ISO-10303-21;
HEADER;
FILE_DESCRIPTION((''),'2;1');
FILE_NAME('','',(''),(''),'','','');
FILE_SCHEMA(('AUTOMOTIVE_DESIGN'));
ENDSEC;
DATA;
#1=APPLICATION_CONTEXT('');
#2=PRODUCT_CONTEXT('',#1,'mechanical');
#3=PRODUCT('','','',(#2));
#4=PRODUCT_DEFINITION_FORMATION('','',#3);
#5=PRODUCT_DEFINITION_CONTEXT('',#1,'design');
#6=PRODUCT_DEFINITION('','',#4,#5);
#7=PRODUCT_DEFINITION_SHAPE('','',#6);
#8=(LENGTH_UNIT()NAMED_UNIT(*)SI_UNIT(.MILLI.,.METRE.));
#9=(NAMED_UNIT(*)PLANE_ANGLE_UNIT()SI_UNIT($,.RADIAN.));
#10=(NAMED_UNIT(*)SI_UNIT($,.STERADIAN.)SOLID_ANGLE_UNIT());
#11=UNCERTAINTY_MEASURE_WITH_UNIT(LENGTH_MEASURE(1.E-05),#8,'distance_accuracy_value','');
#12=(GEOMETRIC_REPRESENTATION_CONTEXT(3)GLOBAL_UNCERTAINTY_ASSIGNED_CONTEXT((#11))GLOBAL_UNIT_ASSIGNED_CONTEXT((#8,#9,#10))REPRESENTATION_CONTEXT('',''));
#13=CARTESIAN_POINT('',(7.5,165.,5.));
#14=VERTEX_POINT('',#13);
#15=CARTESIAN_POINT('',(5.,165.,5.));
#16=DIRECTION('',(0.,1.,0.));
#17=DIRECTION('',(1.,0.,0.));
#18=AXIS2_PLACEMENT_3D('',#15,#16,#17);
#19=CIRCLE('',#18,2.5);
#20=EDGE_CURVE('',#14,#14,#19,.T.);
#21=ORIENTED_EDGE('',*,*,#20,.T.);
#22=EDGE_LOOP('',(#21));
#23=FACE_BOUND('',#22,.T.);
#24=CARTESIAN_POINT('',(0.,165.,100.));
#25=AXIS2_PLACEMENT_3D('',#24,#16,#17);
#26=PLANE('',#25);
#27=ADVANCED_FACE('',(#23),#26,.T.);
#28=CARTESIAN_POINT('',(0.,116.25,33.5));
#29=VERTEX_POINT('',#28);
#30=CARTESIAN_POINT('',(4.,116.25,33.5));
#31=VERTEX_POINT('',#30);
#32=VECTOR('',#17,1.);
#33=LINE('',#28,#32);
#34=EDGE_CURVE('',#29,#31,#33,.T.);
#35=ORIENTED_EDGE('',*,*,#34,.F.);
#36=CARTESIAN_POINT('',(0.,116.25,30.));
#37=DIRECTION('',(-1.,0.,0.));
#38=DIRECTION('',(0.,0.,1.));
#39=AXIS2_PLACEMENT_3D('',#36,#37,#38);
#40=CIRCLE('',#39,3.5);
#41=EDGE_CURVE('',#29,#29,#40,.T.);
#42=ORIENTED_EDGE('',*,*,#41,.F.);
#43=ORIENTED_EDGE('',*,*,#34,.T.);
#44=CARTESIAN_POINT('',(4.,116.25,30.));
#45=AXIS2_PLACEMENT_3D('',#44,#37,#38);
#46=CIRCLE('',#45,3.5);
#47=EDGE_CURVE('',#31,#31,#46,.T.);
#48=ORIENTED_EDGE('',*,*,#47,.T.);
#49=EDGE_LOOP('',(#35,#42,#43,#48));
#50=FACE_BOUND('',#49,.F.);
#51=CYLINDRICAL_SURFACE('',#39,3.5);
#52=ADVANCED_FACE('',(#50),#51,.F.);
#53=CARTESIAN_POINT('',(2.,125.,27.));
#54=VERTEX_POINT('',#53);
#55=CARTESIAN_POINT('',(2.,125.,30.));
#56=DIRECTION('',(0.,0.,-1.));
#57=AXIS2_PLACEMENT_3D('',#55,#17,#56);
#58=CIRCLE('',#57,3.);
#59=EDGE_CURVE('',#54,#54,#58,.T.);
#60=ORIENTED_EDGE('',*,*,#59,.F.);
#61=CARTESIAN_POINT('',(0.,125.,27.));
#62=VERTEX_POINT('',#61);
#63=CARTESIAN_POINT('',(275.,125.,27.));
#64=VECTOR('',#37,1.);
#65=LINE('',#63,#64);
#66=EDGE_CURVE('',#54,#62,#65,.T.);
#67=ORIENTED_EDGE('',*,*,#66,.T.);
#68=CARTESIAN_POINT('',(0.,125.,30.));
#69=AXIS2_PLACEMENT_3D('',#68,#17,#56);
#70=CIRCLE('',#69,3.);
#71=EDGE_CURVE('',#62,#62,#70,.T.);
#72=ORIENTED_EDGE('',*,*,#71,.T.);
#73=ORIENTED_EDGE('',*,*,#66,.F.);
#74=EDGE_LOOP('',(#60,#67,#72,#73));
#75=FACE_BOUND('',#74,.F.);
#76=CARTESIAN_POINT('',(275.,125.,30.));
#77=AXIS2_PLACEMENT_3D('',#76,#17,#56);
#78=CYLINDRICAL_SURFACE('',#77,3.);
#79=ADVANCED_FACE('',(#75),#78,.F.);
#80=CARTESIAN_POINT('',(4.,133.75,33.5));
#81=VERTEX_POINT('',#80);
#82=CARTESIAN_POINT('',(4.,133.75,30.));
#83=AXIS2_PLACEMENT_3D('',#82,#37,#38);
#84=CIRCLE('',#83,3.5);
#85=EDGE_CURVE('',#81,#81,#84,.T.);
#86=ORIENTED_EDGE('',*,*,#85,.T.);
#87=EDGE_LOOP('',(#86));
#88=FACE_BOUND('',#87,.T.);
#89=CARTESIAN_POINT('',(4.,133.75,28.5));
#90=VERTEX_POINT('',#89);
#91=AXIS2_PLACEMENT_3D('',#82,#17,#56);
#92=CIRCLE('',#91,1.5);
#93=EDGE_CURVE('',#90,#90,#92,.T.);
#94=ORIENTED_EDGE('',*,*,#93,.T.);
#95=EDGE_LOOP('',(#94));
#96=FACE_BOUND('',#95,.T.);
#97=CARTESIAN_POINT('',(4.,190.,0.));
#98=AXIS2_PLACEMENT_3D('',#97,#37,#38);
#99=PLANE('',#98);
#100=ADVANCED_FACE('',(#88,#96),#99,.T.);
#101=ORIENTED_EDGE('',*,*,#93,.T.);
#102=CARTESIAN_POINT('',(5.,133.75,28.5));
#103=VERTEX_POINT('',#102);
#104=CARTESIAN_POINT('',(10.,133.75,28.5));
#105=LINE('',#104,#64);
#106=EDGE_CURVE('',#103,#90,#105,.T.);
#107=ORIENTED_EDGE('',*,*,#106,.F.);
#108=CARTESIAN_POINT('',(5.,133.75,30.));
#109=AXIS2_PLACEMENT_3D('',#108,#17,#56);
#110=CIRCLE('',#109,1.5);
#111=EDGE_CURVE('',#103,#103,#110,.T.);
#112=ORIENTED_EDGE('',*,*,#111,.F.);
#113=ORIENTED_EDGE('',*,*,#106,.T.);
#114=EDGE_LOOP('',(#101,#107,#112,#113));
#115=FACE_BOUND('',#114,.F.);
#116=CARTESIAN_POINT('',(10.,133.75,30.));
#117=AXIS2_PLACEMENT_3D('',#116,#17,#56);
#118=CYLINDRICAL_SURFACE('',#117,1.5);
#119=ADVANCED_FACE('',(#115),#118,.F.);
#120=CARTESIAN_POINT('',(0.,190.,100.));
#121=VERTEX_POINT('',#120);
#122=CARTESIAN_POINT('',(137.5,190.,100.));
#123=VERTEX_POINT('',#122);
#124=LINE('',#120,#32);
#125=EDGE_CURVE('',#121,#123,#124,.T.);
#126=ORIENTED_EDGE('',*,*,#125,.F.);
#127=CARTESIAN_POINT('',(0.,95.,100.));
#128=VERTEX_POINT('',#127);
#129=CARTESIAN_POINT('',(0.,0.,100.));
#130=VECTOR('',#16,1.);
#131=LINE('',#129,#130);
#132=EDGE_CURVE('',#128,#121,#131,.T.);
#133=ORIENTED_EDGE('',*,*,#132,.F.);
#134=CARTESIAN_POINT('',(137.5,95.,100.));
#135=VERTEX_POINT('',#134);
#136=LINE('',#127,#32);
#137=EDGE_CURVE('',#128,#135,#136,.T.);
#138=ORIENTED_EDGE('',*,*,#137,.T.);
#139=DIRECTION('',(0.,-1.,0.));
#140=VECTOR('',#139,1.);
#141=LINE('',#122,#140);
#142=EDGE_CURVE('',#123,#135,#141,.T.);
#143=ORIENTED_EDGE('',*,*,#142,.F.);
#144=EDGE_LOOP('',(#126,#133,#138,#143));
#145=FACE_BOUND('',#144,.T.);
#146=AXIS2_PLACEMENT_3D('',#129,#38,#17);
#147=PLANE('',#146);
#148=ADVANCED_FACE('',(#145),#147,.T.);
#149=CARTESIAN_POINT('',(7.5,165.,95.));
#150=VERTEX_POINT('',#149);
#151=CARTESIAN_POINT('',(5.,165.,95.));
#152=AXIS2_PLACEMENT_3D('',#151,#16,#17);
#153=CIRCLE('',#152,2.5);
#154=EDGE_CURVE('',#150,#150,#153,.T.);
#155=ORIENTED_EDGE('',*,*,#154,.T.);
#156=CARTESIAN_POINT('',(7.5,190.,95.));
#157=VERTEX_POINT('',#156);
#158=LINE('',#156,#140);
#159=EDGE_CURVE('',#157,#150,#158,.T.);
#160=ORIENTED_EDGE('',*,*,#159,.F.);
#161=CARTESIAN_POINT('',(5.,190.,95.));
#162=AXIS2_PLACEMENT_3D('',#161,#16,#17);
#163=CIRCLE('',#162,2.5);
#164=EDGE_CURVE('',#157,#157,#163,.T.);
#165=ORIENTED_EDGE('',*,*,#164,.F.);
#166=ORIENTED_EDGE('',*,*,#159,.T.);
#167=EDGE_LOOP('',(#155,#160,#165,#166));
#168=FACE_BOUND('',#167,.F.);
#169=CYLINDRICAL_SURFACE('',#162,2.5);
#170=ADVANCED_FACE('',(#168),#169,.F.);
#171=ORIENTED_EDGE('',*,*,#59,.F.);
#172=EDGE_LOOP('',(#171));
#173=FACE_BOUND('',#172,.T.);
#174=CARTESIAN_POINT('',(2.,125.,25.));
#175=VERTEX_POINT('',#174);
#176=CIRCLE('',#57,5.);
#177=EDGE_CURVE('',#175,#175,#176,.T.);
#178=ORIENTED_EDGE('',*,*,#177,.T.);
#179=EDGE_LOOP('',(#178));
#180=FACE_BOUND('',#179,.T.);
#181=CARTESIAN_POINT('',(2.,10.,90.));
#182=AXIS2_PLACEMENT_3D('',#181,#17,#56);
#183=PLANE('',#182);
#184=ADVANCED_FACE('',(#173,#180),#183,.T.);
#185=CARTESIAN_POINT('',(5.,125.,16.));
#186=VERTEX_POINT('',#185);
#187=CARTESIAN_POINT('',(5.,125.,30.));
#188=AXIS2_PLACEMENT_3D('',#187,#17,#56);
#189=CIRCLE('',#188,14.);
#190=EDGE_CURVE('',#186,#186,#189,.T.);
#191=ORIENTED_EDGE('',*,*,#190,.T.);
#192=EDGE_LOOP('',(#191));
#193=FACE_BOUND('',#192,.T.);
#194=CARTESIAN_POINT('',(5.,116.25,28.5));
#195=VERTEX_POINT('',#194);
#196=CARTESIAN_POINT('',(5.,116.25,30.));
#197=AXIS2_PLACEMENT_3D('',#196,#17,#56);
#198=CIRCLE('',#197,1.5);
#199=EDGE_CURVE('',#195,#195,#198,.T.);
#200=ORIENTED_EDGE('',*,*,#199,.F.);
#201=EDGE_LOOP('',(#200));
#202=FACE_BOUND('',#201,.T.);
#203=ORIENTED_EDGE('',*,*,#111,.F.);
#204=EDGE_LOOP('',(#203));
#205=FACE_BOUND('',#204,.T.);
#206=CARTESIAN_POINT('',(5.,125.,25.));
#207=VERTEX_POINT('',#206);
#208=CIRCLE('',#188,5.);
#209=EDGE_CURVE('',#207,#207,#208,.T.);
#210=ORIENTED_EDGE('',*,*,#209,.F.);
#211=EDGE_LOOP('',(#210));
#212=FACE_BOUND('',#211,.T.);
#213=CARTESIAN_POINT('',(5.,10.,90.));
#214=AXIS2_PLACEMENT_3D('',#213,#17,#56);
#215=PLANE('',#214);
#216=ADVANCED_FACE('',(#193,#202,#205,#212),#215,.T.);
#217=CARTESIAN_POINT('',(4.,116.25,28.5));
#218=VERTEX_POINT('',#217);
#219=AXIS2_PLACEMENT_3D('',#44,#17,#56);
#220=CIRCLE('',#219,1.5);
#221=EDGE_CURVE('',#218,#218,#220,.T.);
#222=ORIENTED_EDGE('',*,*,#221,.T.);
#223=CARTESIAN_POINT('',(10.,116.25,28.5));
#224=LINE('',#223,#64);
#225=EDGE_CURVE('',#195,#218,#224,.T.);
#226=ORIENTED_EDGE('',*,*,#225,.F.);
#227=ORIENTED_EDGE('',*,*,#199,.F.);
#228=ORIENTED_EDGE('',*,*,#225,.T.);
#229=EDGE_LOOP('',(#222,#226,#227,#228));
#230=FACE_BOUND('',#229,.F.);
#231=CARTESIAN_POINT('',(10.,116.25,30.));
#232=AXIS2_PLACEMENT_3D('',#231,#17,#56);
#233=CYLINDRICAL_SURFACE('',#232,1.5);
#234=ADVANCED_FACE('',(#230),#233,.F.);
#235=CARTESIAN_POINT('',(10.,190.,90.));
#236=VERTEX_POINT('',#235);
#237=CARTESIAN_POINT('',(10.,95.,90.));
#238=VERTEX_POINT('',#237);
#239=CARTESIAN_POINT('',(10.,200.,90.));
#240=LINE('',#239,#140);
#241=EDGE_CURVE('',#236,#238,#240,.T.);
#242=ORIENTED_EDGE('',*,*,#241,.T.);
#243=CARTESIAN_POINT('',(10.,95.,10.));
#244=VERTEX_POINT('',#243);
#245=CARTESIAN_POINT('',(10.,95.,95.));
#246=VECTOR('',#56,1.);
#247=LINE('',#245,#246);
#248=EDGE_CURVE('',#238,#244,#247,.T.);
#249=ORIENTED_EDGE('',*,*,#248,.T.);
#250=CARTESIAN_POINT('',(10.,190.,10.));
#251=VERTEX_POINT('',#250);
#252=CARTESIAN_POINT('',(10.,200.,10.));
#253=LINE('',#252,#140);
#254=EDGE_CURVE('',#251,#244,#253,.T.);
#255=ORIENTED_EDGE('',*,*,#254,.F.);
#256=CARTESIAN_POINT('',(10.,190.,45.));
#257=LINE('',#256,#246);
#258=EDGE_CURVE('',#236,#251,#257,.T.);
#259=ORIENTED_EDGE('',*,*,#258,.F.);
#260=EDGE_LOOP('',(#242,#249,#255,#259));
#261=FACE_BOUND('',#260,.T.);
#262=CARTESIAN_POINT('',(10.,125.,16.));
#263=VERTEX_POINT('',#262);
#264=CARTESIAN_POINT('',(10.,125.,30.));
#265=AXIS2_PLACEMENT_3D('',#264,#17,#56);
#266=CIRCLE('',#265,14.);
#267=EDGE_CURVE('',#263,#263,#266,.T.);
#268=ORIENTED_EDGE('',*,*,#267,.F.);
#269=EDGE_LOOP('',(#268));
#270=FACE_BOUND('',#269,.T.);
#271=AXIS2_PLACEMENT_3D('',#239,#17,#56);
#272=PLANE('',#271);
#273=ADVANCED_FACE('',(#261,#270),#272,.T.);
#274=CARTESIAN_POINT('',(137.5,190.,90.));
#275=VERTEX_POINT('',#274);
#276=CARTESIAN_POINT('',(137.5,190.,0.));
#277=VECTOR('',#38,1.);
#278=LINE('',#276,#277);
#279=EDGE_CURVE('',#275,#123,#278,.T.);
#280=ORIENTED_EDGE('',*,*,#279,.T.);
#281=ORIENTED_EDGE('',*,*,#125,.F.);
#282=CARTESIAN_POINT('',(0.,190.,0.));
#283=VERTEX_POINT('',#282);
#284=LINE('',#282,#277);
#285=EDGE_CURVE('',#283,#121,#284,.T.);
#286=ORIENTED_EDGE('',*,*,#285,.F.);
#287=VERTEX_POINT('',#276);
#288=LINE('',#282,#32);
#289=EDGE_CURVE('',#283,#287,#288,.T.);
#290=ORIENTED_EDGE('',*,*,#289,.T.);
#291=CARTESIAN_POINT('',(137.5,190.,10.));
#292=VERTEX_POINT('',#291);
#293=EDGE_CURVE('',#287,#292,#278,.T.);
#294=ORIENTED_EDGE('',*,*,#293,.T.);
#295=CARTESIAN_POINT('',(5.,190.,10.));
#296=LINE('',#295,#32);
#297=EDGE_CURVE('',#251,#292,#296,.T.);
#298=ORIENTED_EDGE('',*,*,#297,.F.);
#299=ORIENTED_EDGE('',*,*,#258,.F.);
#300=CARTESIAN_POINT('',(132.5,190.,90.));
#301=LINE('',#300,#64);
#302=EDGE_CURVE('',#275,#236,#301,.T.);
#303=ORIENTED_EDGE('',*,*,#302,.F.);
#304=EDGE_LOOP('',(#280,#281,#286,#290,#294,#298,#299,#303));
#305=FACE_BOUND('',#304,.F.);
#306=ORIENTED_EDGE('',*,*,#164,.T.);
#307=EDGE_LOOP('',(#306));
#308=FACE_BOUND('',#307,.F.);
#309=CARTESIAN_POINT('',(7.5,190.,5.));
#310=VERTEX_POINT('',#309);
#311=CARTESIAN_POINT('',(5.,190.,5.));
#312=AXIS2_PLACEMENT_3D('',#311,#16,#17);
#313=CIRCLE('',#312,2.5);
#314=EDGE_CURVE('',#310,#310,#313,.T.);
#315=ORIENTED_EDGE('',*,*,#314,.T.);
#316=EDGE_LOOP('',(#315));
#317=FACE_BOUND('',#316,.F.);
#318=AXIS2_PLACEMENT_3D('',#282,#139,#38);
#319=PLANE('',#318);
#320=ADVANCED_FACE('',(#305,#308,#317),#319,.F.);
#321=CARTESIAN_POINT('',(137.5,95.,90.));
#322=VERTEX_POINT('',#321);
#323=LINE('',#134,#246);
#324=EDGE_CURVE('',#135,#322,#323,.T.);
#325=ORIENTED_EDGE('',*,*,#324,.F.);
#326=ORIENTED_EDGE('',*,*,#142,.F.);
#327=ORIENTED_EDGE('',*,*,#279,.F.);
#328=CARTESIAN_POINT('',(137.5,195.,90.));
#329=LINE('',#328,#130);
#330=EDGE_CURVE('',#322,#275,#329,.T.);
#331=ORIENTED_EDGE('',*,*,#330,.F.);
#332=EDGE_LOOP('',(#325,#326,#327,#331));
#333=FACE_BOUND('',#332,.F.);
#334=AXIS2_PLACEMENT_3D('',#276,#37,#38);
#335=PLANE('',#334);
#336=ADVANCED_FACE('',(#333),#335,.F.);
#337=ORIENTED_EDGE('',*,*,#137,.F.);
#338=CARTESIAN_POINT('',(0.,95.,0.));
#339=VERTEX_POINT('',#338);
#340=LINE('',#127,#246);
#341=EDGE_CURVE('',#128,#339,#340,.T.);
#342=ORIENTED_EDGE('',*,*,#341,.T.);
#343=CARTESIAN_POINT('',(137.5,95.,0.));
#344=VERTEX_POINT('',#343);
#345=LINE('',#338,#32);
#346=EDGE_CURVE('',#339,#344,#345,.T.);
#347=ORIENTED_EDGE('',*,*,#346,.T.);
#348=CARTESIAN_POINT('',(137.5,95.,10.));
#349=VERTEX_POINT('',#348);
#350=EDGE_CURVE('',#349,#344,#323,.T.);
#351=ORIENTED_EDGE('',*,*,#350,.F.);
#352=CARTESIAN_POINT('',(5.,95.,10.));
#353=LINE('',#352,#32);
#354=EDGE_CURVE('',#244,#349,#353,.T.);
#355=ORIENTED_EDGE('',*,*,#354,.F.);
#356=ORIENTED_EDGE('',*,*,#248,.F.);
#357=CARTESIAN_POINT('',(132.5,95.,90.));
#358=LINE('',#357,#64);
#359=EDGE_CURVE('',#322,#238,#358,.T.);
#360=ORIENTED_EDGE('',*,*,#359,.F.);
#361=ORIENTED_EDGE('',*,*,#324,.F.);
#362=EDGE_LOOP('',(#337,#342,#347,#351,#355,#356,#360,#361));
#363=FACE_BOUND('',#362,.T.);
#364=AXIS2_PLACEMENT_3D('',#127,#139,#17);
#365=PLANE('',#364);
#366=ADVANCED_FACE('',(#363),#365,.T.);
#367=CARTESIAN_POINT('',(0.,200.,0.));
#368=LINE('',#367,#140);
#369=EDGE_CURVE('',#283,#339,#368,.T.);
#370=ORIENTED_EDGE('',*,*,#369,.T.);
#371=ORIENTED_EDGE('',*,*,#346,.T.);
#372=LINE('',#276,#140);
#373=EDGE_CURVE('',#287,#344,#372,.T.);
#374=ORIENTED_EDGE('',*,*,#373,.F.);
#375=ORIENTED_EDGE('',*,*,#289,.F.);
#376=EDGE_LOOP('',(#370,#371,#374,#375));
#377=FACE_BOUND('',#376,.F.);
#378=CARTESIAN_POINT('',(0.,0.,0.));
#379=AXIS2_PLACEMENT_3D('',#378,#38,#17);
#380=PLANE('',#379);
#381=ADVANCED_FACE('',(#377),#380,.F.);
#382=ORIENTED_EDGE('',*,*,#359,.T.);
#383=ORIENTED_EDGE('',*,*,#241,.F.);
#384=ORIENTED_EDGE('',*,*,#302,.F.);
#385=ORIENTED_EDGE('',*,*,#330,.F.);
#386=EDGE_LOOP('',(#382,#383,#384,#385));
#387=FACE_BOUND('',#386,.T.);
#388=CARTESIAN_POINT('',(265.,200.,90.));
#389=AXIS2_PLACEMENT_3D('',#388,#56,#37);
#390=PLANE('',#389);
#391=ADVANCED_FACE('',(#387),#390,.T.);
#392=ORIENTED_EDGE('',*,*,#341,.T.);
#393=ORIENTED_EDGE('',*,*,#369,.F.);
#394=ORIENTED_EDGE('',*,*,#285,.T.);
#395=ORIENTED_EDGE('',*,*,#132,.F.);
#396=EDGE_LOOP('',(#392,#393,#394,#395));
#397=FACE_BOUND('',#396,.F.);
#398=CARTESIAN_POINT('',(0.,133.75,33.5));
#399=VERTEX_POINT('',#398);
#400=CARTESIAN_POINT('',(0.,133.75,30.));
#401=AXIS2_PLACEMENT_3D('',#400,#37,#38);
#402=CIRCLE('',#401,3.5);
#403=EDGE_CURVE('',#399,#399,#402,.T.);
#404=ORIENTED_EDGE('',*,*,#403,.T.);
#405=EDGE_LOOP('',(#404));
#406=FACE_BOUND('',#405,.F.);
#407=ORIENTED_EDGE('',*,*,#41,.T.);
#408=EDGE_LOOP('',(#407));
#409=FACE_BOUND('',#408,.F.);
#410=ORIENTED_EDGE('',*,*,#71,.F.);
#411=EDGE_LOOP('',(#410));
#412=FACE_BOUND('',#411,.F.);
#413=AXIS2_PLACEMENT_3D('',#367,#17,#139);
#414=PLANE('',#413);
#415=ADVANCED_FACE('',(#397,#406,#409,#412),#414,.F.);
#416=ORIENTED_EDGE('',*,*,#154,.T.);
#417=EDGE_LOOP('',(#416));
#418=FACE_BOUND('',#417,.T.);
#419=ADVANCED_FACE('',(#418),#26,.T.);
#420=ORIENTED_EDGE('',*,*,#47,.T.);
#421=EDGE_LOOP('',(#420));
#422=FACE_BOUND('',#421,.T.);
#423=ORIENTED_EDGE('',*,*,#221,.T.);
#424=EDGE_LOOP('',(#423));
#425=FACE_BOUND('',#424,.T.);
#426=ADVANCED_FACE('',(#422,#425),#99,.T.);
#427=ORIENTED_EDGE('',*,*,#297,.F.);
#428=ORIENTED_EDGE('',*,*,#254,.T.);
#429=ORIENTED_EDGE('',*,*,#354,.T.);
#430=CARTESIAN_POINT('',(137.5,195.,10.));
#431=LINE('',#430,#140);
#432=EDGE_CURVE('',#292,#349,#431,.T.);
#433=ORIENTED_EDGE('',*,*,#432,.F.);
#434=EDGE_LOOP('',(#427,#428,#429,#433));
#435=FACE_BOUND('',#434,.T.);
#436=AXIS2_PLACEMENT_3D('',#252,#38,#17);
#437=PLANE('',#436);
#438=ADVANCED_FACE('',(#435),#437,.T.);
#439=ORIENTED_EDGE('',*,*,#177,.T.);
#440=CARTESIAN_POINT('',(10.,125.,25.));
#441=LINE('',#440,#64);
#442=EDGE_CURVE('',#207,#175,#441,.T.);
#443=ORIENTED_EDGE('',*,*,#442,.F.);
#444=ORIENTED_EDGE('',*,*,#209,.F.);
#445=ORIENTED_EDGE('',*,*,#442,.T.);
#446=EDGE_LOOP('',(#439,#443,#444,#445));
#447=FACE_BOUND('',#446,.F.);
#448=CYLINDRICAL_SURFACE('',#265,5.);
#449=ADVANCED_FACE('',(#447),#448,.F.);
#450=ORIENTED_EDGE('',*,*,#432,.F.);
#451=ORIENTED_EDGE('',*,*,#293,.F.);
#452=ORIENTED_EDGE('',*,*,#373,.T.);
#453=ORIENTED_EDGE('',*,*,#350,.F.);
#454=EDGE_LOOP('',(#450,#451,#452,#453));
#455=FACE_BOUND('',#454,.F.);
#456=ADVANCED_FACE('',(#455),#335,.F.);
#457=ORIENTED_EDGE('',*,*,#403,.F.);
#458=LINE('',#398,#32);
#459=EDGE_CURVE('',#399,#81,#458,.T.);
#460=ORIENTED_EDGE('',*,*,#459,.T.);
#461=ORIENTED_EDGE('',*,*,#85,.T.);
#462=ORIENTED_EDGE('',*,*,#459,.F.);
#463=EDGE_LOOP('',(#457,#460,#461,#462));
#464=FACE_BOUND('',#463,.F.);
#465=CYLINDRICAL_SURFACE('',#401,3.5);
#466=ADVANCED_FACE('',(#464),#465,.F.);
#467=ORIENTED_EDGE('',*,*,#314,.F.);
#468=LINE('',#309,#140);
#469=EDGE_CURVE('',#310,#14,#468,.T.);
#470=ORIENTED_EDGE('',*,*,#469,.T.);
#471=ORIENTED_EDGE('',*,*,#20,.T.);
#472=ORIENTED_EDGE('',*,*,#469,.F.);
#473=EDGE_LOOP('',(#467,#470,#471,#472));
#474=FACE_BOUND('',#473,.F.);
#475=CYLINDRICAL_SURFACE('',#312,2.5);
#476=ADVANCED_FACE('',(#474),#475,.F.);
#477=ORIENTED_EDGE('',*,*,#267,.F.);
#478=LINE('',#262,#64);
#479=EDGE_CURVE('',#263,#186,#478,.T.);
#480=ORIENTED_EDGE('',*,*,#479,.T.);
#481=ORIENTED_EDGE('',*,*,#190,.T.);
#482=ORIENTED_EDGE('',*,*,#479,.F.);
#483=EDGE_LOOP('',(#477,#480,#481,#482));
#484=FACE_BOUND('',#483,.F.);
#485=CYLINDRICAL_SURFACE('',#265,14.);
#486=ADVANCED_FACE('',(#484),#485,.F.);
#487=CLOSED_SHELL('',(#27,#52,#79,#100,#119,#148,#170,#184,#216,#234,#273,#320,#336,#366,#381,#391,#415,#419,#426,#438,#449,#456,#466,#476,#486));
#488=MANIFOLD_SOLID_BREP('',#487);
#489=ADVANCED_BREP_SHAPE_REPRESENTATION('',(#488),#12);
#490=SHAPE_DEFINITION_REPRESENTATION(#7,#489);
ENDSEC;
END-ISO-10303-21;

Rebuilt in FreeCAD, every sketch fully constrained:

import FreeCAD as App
import Part
import Sketcher
from FreeCAD import Vector

doc = App.newDocument("Part")
body = doc.addObject("PartDesign::Body", "Body")

# Sketch on XY plane
sketch1 = body.newObject("Sketcher::SketchObject", "Sketch")
sketch1.AttachmentSupport = (doc.getObject("XY_Plane"), [""])
sketch1.MapMode = "FlatFace"
sketch1.addGeometry([
    Part.LineSegment(Vector(0, 200, 0), Vector(0, 0, 0)),
    Part.LineSegment(Vector(0, 0, 0), Vector(275, 0, 0)),
    Part.LineSegment(Vector(275, 0, 0), Vector(275, 200, 0)),
    Part.LineSegment(Vector(275, 200, 0), Vector(0, 200, 0)),
], False)
sketch1.addConstraint([
    Sketcher.Constraint("Coincident", 0, 2, 1, 1),
    Sketcher.Constraint("Coincident", 1, 2, 2, 1),
    Sketcher.Constraint("Coincident", 2, 2, 3, 1),
    Sketcher.Constraint("Coincident", 3, 2, 0, 1),
    Sketcher.Constraint("Vertical", 0),
    Sketcher.Constraint("Horizontal", 1),
    Sketcher.Constraint("Vertical", 2),
    Sketcher.Constraint("Horizontal", 3),
    Sketcher.Constraint("Coincident", 0, 2, -1, 1),
    Sketcher.Constraint("DistanceX", 1, 1, 1, 2, 275.0),
    Sketcher.Constraint("DistanceY", 0, 2, 0, 1, 200.0),
])
pad1 = body.newObject("PartDesign::Pad", "Pad")
pad1.Profile = sketch1
pad1.Length = 20

# Sketch on XY plane
sketch2 = body.newObject("Sketcher::SketchObject", "Sketch001")
sketch2.AttachmentSupport = (doc.getObject("XY_Plane"), [""])
sketch2.MapMode = "FlatFace"
sketch2.AttachmentOffset = App.Placement(Vector(0, 0, 20), App.Rotation())
sketch2.addGeometry([
    Part.LineSegment(Vector(0, 0, 0), Vector(275, 0, 0)),
    Part.LineSegment(Vector(275, 0, 0), Vector(275, 200, 0)),
    Part.LineSegment(Vector(275, 200, 0), Vector(0, 200, 0)),
    Part.LineSegment(Vector(0, 200, 0), Vector(0, 0, 0)),
], False)
sketch2.addConstraint([
    Sketcher.Constraint("Coincident", 0, 2, 1, 1),
    Sketcher.Constraint("Coincident", 1, 2, 2, 1),
    Sketcher.Constraint("Coincident", 2, 2, 3, 1),
    Sketcher.Constraint("Coincident", 3, 2, 0, 1),
    Sketcher.Constraint("Horizontal", 0),
    Sketcher.Constraint("Vertical", 1),
    Sketcher.Constraint("Horizontal", 2),
    Sketcher.Constraint("Vertical", 3),
    Sketcher.Constraint("Coincident", 3, 2, -1, 1),
    Sketcher.Constraint("DistanceX", 0, 1, 0, 2, 275.0),
    Sketcher.Constraint("DistanceY", 1, 1, 1, 2, 200.0),
])
pad2 = body.newObject("PartDesign::Pad", "Pad001")
pad2.Profile = sketch2
pad2.Length = 80

# Sketch on XZ plane
sketch3 = body.newObject("Sketcher::SketchObject", "Sketch002")
sketch3.AttachmentSupport = (doc.getObject("XZ_Plane"), [""])
sketch3.MapMode = "FlatFace"
sketch3.addGeometry(Part.Circle(Vector(48, 50, 0), Vector(0, 0, 1), 18), False)
sketch3.addConstraint([
    Sketcher.Constraint("Diameter", 0, 35.0),
    Sketcher.Constraint("DistanceY", -1, 1, 0, 3, 50.0),
    Sketcher.Constraint("DistanceX", -1, 1, 0, 3, 47.5),
])
pocket1 = body.newObject("PartDesign::Pocket", "Pocket")
pocket1.Profile = sketch3
pocket1.Length = 100

# Sketch on XZ plane
sketch4 = body.newObject("Sketcher::SketchObject", "Sketch003")
sketch4.AttachmentSupport = (doc.getObject("XZ_Plane"), [""])
sketch4.MapMode = "FlatFace"
sketch4.AttachmentOffset = App.Placement(Vector(0, 0, -200), App.Rotation())
sketch4.addGeometry([
    Part.LineSegment(Vector(10, 90, 0), Vector(265, 90, 0)),
    Part.LineSegment(Vector(265, 90, 0), Vector(265, 10, 0)),
    Part.LineSegment(Vector(265, 10, 0), Vector(10, 10, 0)),
    Part.LineSegment(Vector(10, 10, 0), Vector(10, 90, 0)),
], False)
sketch4.addConstraint([
    Sketcher.Constraint("Coincident", 0, 2, 1, 1),
    Sketcher.Constraint("Coincident", 1, 2, 2, 1),
    Sketcher.Constraint("Coincident", 2, 2, 3, 1),
    Sketcher.Constraint("Coincident", 3, 2, 0, 1),
    Sketcher.Constraint("Horizontal", 0),
    Sketcher.Constraint("Vertical", 1),
    Sketcher.Constraint("Horizontal", 2),
    Sketcher.Constraint("Vertical", 3),
    Sketcher.Constraint("DistanceY", -1, 1, 1, 2, 10.0),
    Sketcher.Constraint("DistanceX", -1, 1, 2, 2, 10.0),
    Sketcher.Constraint("DistanceX", 0, 1, 0, 2, 255.0),
    Sketcher.Constraint("DistanceY", 1, 2, 1, 1, 80.0),
])
pocket2 = body.newObject("PartDesign::Pocket", "Pocket001")
pocket2.Profile = sketch4
pocket2.Length = 190
pocket2.Reversed = True

# Sketch on YZ plane
sketch5 = body.newObject("Sketcher::SketchObject", "Sketch004")
sketch5.AttachmentSupport = (doc.getObject("YZ_Plane"), [""])
sketch5.MapMode = "FlatFace"
sketch5.addGeometry([
    Part.LineSegment(Vector(200, 100, 0), Vector(200, 0, 0)),
    Part.LineSegment(Vector(200, 0, 0), Vector(190, 0, 0)),
    Part.LineSegment(Vector(190, 0, 0), Vector(190, 100, 0)),
    Part.LineSegment(Vector(190, 100, 0), Vector(200, 100, 0)),
], False)
sketch5.addConstraint([
    Sketcher.Constraint("Coincident", 0, 2, 1, 1),
    Sketcher.Constraint("Coincident", 1, 2, 2, 1),
    Sketcher.Constraint("Coincident", 2, 2, 3, 1),
    Sketcher.Constraint("Coincident", 3, 2, 0, 1),
    Sketcher.Constraint("Vertical", 0),
    Sketcher.Constraint("Horizontal", 1),
    Sketcher.Constraint("Vertical", 2),
    Sketcher.Constraint("Horizontal", 3),
    Sketcher.Constraint("PointOnObject", 0, 2, -1),
    Sketcher.Constraint("DistanceX", 1, 2, 1, 1, 10.0),
    Sketcher.Constraint("DistanceY", 0, 2, 0, 1, 100.0),
    Sketcher.Constraint("DistanceX", -1, 1, 0, 2, 200.0),
])
pocket3 = body.newObject("PartDesign::Pocket", "Pocket002")
pocket3.Profile = sketch5
pocket3.Type = "ThroughAll"
pocket3.Reversed = True

# Sketch on XZ plane
sketch6 = body.newObject("Sketcher::SketchObject", "Sketch005")
sketch6.AttachmentSupport = (doc.getObject("XZ_Plane"), [""])
sketch6.MapMode = "FlatFace"
sketch6.AttachmentOffset = App.Placement(Vector(0, 0, -190), App.Rotation())
sketch6.addGeometry([
    Part.Circle(Vector(270, 95, 0), Vector(0, 0, 1), 2.5),
    Part.Circle(Vector(270, 5, 0), Vector(0, 0, 1), 2.5),
    Part.Circle(Vector(5, 5, 0), Vector(0, 0, 1), 2.5),
    Part.Circle(Vector(5, 95, 0), Vector(0, 0, 1), 2.5),
], False)
sketch6.addConstraint([
    Sketcher.Constraint("Equal", 0, 1),
    Sketcher.Constraint("Equal", 1, 2),
    Sketcher.Constraint("Equal", 2, 3),
    Sketcher.Constraint("Horizontal", 1, 3, 2, 3),
    Sketcher.Constraint("Horizontal", 0, 3, 3, 3),
    Sketcher.Constraint("Vertical", 0, 3, 1, 3),
    Sketcher.Constraint("Vertical", 2, 3, 3, 3),
    Sketcher.Constraint("Diameter", 0, 5.0),
    Sketcher.Constraint("DistanceY", -1, 1, 1, 3, 5.0),
    Sketcher.Constraint("DistanceX", -1, 1, 2, 3, 5.0),
    Sketcher.Constraint("DistanceX", -1, 1, 0, 3, 270.0),
    Sketcher.Constraint("DistanceY", -1, 1, 0, 3, 95.0),
])
pocket4 = body.newObject("PartDesign::Pocket", "Pocket003")
pocket4.Profile = sketch6
pocket4.Length = 25
pocket4.Reversed = True

# Sketch on XZ plane
sketch7 = body.newObject("Sketcher::SketchObject", "Sketch006")
sketch7.AttachmentSupport = (doc.getObject("XZ_Plane"), [""])
sketch7.MapMode = "FlatFace"
sketch7.addGeometry([
    Part.LineSegment(Vector(82, 35, 0), Vector(82, 15, 0)),  # 0
    Part.LineSegment(Vector(82, 15, 0), Vector(85, 15, 0)),  # 1
    Part.LineSegment(Vector(85, 15, 0), Vector(85, 35, 0)),  # 2
    Part.LineSegment(Vector(85, 35, 0), Vector(82, 35, 0)),  # 3
    Part.LineSegment(Vector(94, 15, 0), Vector(97, 15, 0)),  # 4
    Part.LineSegment(Vector(97, 15, 0), Vector(97, 35, 0)),  # 5
    Part.LineSegment(Vector(97, 35, 0), Vector(94, 35, 0)),  # 6
    Part.LineSegment(Vector(94, 35, 0), Vector(94, 15, 0)),  # 7
    Part.LineSegment(Vector(106, 15, 0), Vector(109, 15, 0)),  # 8
    Part.LineSegment(Vector(109, 15, 0), Vector(109, 35, 0)),  # 9
    Part.LineSegment(Vector(109, 35, 0), Vector(106, 35, 0)),  # 10
    Part.LineSegment(Vector(106, 35, 0), Vector(106, 15, 0)),  # 11
    Part.LineSegment(Vector(118, 15, 0), Vector(121, 15, 0)),  # 12
    Part.LineSegment(Vector(121, 15, 0), Vector(121, 35, 0)),  # 13
    Part.LineSegment(Vector(121, 35, 0), Vector(118, 35, 0)),  # 14
    Part.LineSegment(Vector(118, 35, 0), Vector(118, 15, 0)),  # 15
    Part.LineSegment(Vector(130, 15, 0), Vector(133, 15, 0)),  # 16
    Part.LineSegment(Vector(133, 15, 0), Vector(133, 35, 0)),  # 17
    Part.LineSegment(Vector(133, 35, 0), Vector(130, 35, 0)),  # 18
    Part.LineSegment(Vector(130, 35, 0), Vector(130, 15, 0)),  # 19
    Part.LineSegment(Vector(142, 15, 0), Vector(145, 15, 0)),  # 20
    Part.LineSegment(Vector(145, 15, 0), Vector(145, 35, 0)),  # 21
    Part.LineSegment(Vector(145, 35, 0), Vector(142, 35, 0)),  # 22
    Part.LineSegment(Vector(142, 35, 0), Vector(142, 15, 0)),  # 23
    Part.LineSegment(Vector(154, 15, 0), Vector(157, 15, 0)),  # 24
    Part.LineSegment(Vector(157, 15, 0), Vector(157, 35, 0)),  # 25
    Part.LineSegment(Vector(157, 35, 0), Vector(154, 35, 0)),  # 26
    Part.LineSegment(Vector(154, 35, 0), Vector(154, 15, 0)),  # 27
    Part.LineSegment(Vector(166, 15, 0), Vector(169, 15, 0)),  # 28
    Part.LineSegment(Vector(169, 15, 0), Vector(169, 35, 0)),  # 29
    Part.LineSegment(Vector(169, 35, 0), Vector(166, 35, 0)),  # 30
    Part.LineSegment(Vector(166, 35, 0), Vector(166, 15, 0)),  # 31
    Part.LineSegment(Vector(178, 15, 0), Vector(181, 15, 0)),  # 32
    Part.LineSegment(Vector(181, 15, 0), Vector(181, 35, 0)),  # 33
    Part.LineSegment(Vector(181, 35, 0), Vector(178, 35, 0)),  # 34
    Part.LineSegment(Vector(178, 35, 0), Vector(178, 15, 0)),  # 35
    Part.LineSegment(Vector(190, 15, 0), Vector(193, 15, 0)),  # 36
    Part.LineSegment(Vector(193, 15, 0), Vector(193, 35, 0)),  # 37
    Part.LineSegment(Vector(193, 35, 0), Vector(190, 35, 0)),  # 38
    Part.LineSegment(Vector(190, 35, 0), Vector(190, 15, 0)),  # 39
    Part.LineSegment(Vector(202, 15, 0), Vector(205, 15, 0)),  # 40
    Part.LineSegment(Vector(205, 15, 0), Vector(205, 35, 0)),  # 41
    Part.LineSegment(Vector(205, 35, 0), Vector(202, 35, 0)),  # 42
    Part.LineSegment(Vector(202, 35, 0), Vector(202, 15, 0)),  # 43
    Part.LineSegment(Vector(214, 15, 0), Vector(217, 15, 0)),  # 44
    Part.LineSegment(Vector(217, 15, 0), Vector(217, 35, 0)),  # 45
    Part.LineSegment(Vector(217, 35, 0), Vector(214, 35, 0)),  # 46
    Part.LineSegment(Vector(214, 35, 0), Vector(214, 15, 0)),  # 47
    Part.LineSegment(Vector(226, 15, 0), Vector(229, 15, 0)),  # 48
    Part.LineSegment(Vector(229, 15, 0), Vector(229, 35, 0)),  # 49
    Part.LineSegment(Vector(229, 35, 0), Vector(226, 35, 0)),  # 50
    Part.LineSegment(Vector(226, 35, 0), Vector(226, 15, 0)),  # 51
    Part.LineSegment(Vector(238, 15, 0), Vector(241, 15, 0)),  # 52
    Part.LineSegment(Vector(241, 15, 0), Vector(241, 35, 0)),  # 53
    Part.LineSegment(Vector(241, 35, 0), Vector(238, 35, 0)),  # 54
    Part.LineSegment(Vector(238, 35, 0), Vector(238, 15, 0)),  # 55
], False)
sketch7.addConstraint([
    Sketcher.Constraint("Coincident", 0, 2, 1, 1),
    Sketcher.Constraint("Coincident", 1, 2, 2, 1),
    Sketcher.Constraint("Coincident", 2, 2, 3, 1),
    Sketcher.Constraint("Coincident", 3, 2, 0, 1),
    Sketcher.Constraint("Coincident", 4, 2, 5, 1),
    Sketcher.Constraint("Coincident", 5, 2, 6, 1),
    Sketcher.Constraint("Coincident", 6, 2, 7, 1),
    Sketcher.Constraint("Coincident", 7, 2, 4, 1),
    Sketcher.Constraint("Coincident", 8, 2, 9, 1),
    Sketcher.Constraint("Coincident", 9, 2, 10, 1),
    Sketcher.Constraint("Coincident", 10, 2, 11, 1),
    Sketcher.Constraint("Coincident", 11, 2, 8, 1),
    Sketcher.Constraint("Coincident", 12, 2, 13, 1),
    Sketcher.Constraint("Coincident", 13, 2, 14, 1),
    Sketcher.Constraint("Coincident", 14, 2, 15, 1),
    Sketcher.Constraint("Coincident", 15, 2, 12, 1),
    Sketcher.Constraint("Coincident", 16, 2, 17, 1),
    Sketcher.Constraint("Coincident", 17, 2, 18, 1),
    Sketcher.Constraint("Coincident", 18, 2, 19, 1),
    Sketcher.Constraint("Coincident", 19, 2, 16, 1),
    Sketcher.Constraint("Coincident", 20, 2, 21, 1),
    Sketcher.Constraint("Coincident", 21, 2, 22, 1),
    Sketcher.Constraint("Coincident", 22, 2, 23, 1),
    Sketcher.Constraint("Coincident", 23, 2, 20, 1),
    Sketcher.Constraint("Coincident", 24, 2, 25, 1),
    Sketcher.Constraint("Coincident", 25, 2, 26, 1),
    Sketcher.Constraint("Coincident", 26, 2, 27, 1),
    Sketcher.Constraint("Coincident", 27, 2, 24, 1),
    Sketcher.Constraint("Coincident", 28, 2, 29, 1),
    Sketcher.Constraint("Coincident", 29, 2, 30, 1),
    Sketcher.Constraint("Coincident", 30, 2, 31, 1),
    Sketcher.Constraint("Coincident", 31, 2, 28, 1),
    Sketcher.Constraint("Coincident", 32, 2, 33, 1),
    Sketcher.Constraint("Coincident", 33, 2, 34, 1),
    Sketcher.Constraint("Coincident", 34, 2, 35, 1),
    Sketcher.Constraint("Coincident", 35, 2, 32, 1),
    Sketcher.Constraint("Coincident", 36, 2, 37, 1),
    Sketcher.Constraint("Coincident", 37, 2, 38, 1),
    Sketcher.Constraint("Coincident", 38, 2, 39, 1),
    Sketcher.Constraint("Coincident", 39, 2, 36, 1),
    Sketcher.Constraint("Coincident", 40, 2, 41, 1),
    Sketcher.Constraint("Coincident", 41, 2, 42, 1),
    Sketcher.Constraint("Coincident", 42, 2, 43, 1),
    Sketcher.Constraint("Coincident", 43, 2, 40, 1),
    Sketcher.Constraint("Coincident", 44, 2, 45, 1),
    Sketcher.Constraint("Coincident", 45, 2, 46, 1),
    Sketcher.Constraint("Coincident", 46, 2, 47, 1),
    Sketcher.Constraint("Coincident", 47, 2, 44, 1),
    Sketcher.Constraint("Coincident", 48, 2, 49, 1),
    Sketcher.Constraint("Coincident", 49, 2, 50, 1),
    Sketcher.Constraint("Coincident", 50, 2, 51, 1),
    Sketcher.Constraint("Coincident", 51, 2, 48, 1),
    Sketcher.Constraint("Coincident", 52, 2, 53, 1),
    Sketcher.Constraint("Coincident", 53, 2, 54, 1),
    Sketcher.Constraint("Coincident", 54, 2, 55, 1),
    Sketcher.Constraint("Coincident", 55, 2, 52, 1),
    Sketcher.Constraint("Vertical", 0),
    Sketcher.Constraint("Horizontal", 1),
    Sketcher.Constraint("Vertical", 2),
    Sketcher.Constraint("Horizontal", 3),
    Sketcher.Constraint("Horizontal", 4),
    Sketcher.Constraint("Vertical", 5),
    Sketcher.Constraint("Horizontal", 6),
    Sketcher.Constraint("Vertical", 7),
    Sketcher.Constraint("Horizontal", 8),
    Sketcher.Constraint("Vertical", 9),
    Sketcher.Constraint("Horizontal", 10),
    Sketcher.Constraint("Vertical", 11),
    Sketcher.Constraint("Horizontal", 12),
    Sketcher.Constraint("Vertical", 13),
    Sketcher.Constraint("Horizontal", 14),
    Sketcher.Constraint("Vertical", 15),
    Sketcher.Constraint("Horizontal", 16),
    Sketcher.Constraint("Vertical", 17),
    Sketcher.Constraint("Horizontal", 18),
    Sketcher.Constraint("Vertical", 19),
    Sketcher.Constraint("Horizontal", 20),
    Sketcher.Constraint("Vertical", 21),
    Sketcher.Constraint("Horizontal", 22),
    Sketcher.Constraint("Vertical", 23),
    Sketcher.Constraint("Horizontal", 24),
    Sketcher.Constraint("Vertical", 25),
    Sketcher.Constraint("Horizontal", 26),
    Sketcher.Constraint("Vertical", 27),
    Sketcher.Constraint("Horizontal", 28),
    Sketcher.Constraint("Vertical", 29),
    Sketcher.Constraint("Horizontal", 30),
    Sketcher.Constraint("Vertical", 31),
    Sketcher.Constraint("Horizontal", 32),
    Sketcher.Constraint("Vertical", 33),
    Sketcher.Constraint("Horizontal", 34),
    Sketcher.Constraint("Vertical", 35),
    Sketcher.Constraint("Horizontal", 36),
    Sketcher.Constraint("Vertical", 37),
    Sketcher.Constraint("Horizontal", 38),
    Sketcher.Constraint("Vertical", 39),
    Sketcher.Constraint("Horizontal", 40),
    Sketcher.Constraint("Vertical", 41),
    Sketcher.Constraint("Horizontal", 42),
    Sketcher.Constraint("Vertical", 43),
    Sketcher.Constraint("Horizontal", 44),
    Sketcher.Constraint("Vertical", 45),
    Sketcher.Constraint("Horizontal", 46),
    Sketcher.Constraint("Vertical", 47),
    Sketcher.Constraint("Horizontal", 48),
    Sketcher.Constraint("Vertical", 49),
    Sketcher.Constraint("Horizontal", 50),
    Sketcher.Constraint("Vertical", 51),
    Sketcher.Constraint("Horizontal", 52),
    Sketcher.Constraint("Vertical", 53),
    Sketcher.Constraint("Horizontal", 54),
    Sketcher.Constraint("Vertical", 55),
    Sketcher.Constraint("Horizontal", 1, 2, 4, 2),
    Sketcher.Constraint("Horizontal", 3, 2, 5, 2),
    Sketcher.Constraint("Horizontal", 7, 2, 8, 2),
    Sketcher.Constraint("Horizontal", 6, 2, 9, 2),
    Sketcher.Constraint("Horizontal", 11, 2, 12, 2),
    Sketcher.Constraint("Horizontal", 10, 2, 13, 2),
    Sketcher.Constraint("Horizontal", 15, 2, 16, 2),
    Sketcher.Constraint("Horizontal", 14, 2, 17, 2),
    Sketcher.Constraint("Horizontal", 19, 2, 20, 2),
    Sketcher.Constraint("Horizontal", 18, 2, 21, 2),
    Sketcher.Constraint("Horizontal", 23, 2, 24, 2),
    Sketcher.Constraint("Horizontal", 22, 2, 25, 2),
    Sketcher.Constraint("Horizontal", 27, 2, 28, 2),
    Sketcher.Constraint("Horizontal", 26, 2, 29, 2),
    Sketcher.Constraint("Horizontal", 31, 2, 32, 2),
    Sketcher.Constraint("Horizontal", 30, 2, 33, 2),
    Sketcher.Constraint("Horizontal", 35, 2, 36, 2),
    Sketcher.Constraint("Horizontal", 34, 2, 37, 2),
    Sketcher.Constraint("Horizontal", 39, 2, 40, 2),
    Sketcher.Constraint("Horizontal", 38, 2, 41, 2),
    Sketcher.Constraint("Horizontal", 43, 2, 44, 2),
    Sketcher.Constraint("Horizontal", 42, 2, 45, 2),
    Sketcher.Constraint("Horizontal", 47, 2, 48, 2),
    Sketcher.Constraint("Horizontal", 46, 2, 49, 2),
    Sketcher.Constraint("Horizontal", 51, 2, 52, 2),
    Sketcher.Constraint("Horizontal", 50, 2, 53, 2),
    Sketcher.Constraint("Equal", 3, 4),
    Sketcher.Constraint("Equal", 6, 8),
    Sketcher.Constraint("Equal", 10, 12),
    Sketcher.Constraint("Equal", 14, 16),
    Sketcher.Constraint("Equal", 18, 20),
    Sketcher.Constraint("Equal", 22, 24),
    Sketcher.Constraint("Equal", 26, 28),
    Sketcher.Constraint("Equal", 30, 32),
    Sketcher.Constraint("Equal", 34, 36),
    Sketcher.Constraint("Equal", 38, 40),
    Sketcher.Constraint("Equal", 42, 44),
    Sketcher.Constraint("Equal", 46, 48),
    Sketcher.Constraint("Equal", 50, 52),
    Sketcher.Constraint("DistanceX", 1, 1, 1, 2, 3.0),
    Sketcher.Constraint("DistanceY", 0, 2, 0, 1, 20.0),
    Sketcher.Constraint("DistanceX", -1, 1, 0, 2, 82.0),
    Sketcher.Constraint("DistanceY", -1, 1, 0, 2, 15.0),
    Sketcher.Constraint("DistanceX", 1, 2, 4, 2, 12.0),
    Sketcher.Constraint("DistanceX", 4, 2, 8, 2, 12.0),
    Sketcher.Constraint("DistanceX", 8, 2, 12, 2, 12.0),
    Sketcher.Constraint("DistanceX", 12, 2, 16, 2, 12.0),
    Sketcher.Constraint("DistanceX", 16, 2, 20, 2, 12.0),
    Sketcher.Constraint("DistanceX", 20, 2, 24, 2, 12.0),
    Sketcher.Constraint("DistanceX", 24, 2, 28, 2, 12.0),
    Sketcher.Constraint("DistanceX", 28, 2, 32, 2, 12.0),
    Sketcher.Constraint("DistanceX", 32, 2, 36, 2, 12.0),
    Sketcher.Constraint("DistanceX", 36, 2, 40, 2, 12.0),
    Sketcher.Constraint("DistanceX", 40, 2, 44, 2, 12.0),
    Sketcher.Constraint("DistanceX", 44, 2, 48, 2, 12.0),
    Sketcher.Constraint("DistanceX", 48, 2, 52, 2, 12.0),
])
pocket5 = body.newObject("PartDesign::Pocket", "Pocket004")
pocket5.Profile = sketch7
pocket5.Type = "ThroughAll"

# Sketch on YZ plane
sketch8 = body.newObject("Sketcher::SketchObject", "Sketch007")
sketch8.AttachmentSupport = (doc.getObject("YZ_Plane"), [""])
sketch8.MapMode = "FlatFace"
sketch8.AttachmentOffset = App.Placement(Vector(0, 0, 275), App.Rotation())
sketch8.addGeometry(Part.Circle(Vector(125, 30, 0), Vector(0, 0, 1), 3), False)
sketch8.addConstraint([
    Sketcher.Constraint("Diameter", 0, 6.0),
    Sketcher.Constraint("DistanceX", -1, 1, 0, 3, 125.0),
    Sketcher.Constraint("DistanceY", -1, 1, 0, 3, 30.0),
])
pocket6 = body.newObject("PartDesign::Pocket", "Pocket005")
pocket6.Profile = sketch8
pocket6.Type = "ThroughAll"

# Sketch on XZ plane
sketch9 = body.newObject("Sketcher::SketchObject", "Sketch008")
sketch9.AttachmentSupport = (doc.getObject("XZ_Plane"), [""])
sketch9.MapMode = "FlatFace"
sketch9.AttachmentOffset = App.Placement(Vector(0, 0, -190), App.Rotation())
sketch9.addGeometry([
    Part.LineSegment(Vector(275, 100, 0), Vector(275, 0, 0)),
    Part.LineSegment(Vector(275, 0, 0), Vector(138, 0, 0)),
    Part.LineSegment(Vector(138, 0, 0), Vector(138, 100, 0)),
    Part.LineSegment(Vector(138, 100, 0), Vector(275, 100, 0)),
], False)
sketch9.addConstraint([
    Sketcher.Constraint("Coincident", 0, 2, 1, 1),
    Sketcher.Constraint("Coincident", 1, 2, 2, 1),
    Sketcher.Constraint("Coincident", 2, 2, 3, 1),
    Sketcher.Constraint("Coincident", 3, 2, 0, 1),
    Sketcher.Constraint("Vertical", 0),
    Sketcher.Constraint("Horizontal", 1),
    Sketcher.Constraint("Vertical", 2),
    Sketcher.Constraint("Horizontal", 3),
    Sketcher.Constraint("PointOnObject", 0, 2, -1),
    Sketcher.Constraint("DistanceY", 0, 2, 0, 1, 100.0),
    Sketcher.Constraint("DistanceX", 1, 2, 1, 1, 137.5),
    Sketcher.Constraint("DistanceX", -1, 1, 0, 2, 275.0),
])
pocket7 = body.newObject("PartDesign::Pocket", "Pocket006")
pocket7.Profile = sketch9
pocket7.Type = "ThroughAll"
pocket7.Reversed = True

# Sketch on YZ plane
sketch10 = body.newObject("Sketcher::SketchObject", "Sketch009")
sketch10.AttachmentSupport = (doc.getObject("YZ_Plane"), [""])
sketch10.MapMode = "FlatFace"
sketch10.AttachmentOffset = App.Placement(Vector(0, 0, 10), App.Rotation())
sketch10.addGeometry([
    Part.Circle(Vector(133.8, 30, 0), Vector(0, 0, 1), 1.5),
    Part.Circle(Vector(116.2, 30, 0), Vector(0, 0, 1), 1.5),
], False)
sketch10.addConstraint([
    Sketcher.Constraint("Equal", 0, 1),
    Sketcher.Constraint("Horizontal", 0, 3, 1, 3),
    Sketcher.Constraint("Diameter", 0, 3.0),
    Sketcher.Constraint("DistanceX", 1, 3, 0, 3, 17.5),
    Sketcher.Constraint("DistanceY", -1, 1, 0, 3, 30.0),
    Sketcher.Constraint("DistanceX", -1, 1, 0, 3, 133.75),
])
pocket8 = body.newObject("PartDesign::Pocket", "Pocket007")
pocket8.Profile = sketch10
pocket8.Type = "ThroughAll"

# Sketch on YZ plane
sketch11 = body.newObject("Sketcher::SketchObject", "Sketch010")
sketch11.AttachmentSupport = (doc.getObject("YZ_Plane"), [""])
sketch11.MapMode = "FlatFace"
sketch11.AttachmentOffset = App.Placement(Vector(0, 0, 10), App.Rotation())
sketch11.addGeometry([
    Part.Circle(Vector(125, 30, 0), Vector(0, 0, 1), 5),
    Part.Circle(Vector(125, 30, 0), Vector(0, 0, 1), 3),
], False)
sketch11.addConstraint([
    Sketcher.Constraint("Coincident", 1, 3, 0, 3),
    Sketcher.Constraint("Diameter", 0, 10.0),
    Sketcher.Constraint("Diameter", 1, 6.0),
    Sketcher.Constraint("DistanceX", -1, 1, 0, 3, 125.0),
    Sketcher.Constraint("DistanceY", -1, 1, 0, 3, 30.0),
])
pocket9 = body.newObject("PartDesign::Pocket", "Pocket008")
pocket9.Profile = sketch11
pocket9.Length = 8

# Sketch on YZ plane
sketch12 = body.newObject("Sketcher::SketchObject", "Sketch011")
sketch12.AttachmentSupport = (doc.getObject("YZ_Plane"), [""])
sketch12.MapMode = "FlatFace"
sketch12.AttachmentOffset = App.Placement(Vector(0, 0, 10), App.Rotation())
sketch12.addGeometry([
    Part.Circle(Vector(125, 30, 0), Vector(0, 0, 1), 14),
    Part.Circle(Vector(125, 30, 0), Vector(0, 0, 1), 5),
], False)
sketch12.addConstraint([
    Sketcher.Constraint("Coincident", 1, 3, 0, 3),
    Sketcher.Constraint("Diameter", 0, 28.0),
    Sketcher.Constraint("Diameter", 1, 10.0),
    Sketcher.Constraint("DistanceX", -1, 1, 0, 3, 125.0),
    Sketcher.Constraint("DistanceY", -1, 1, 0, 3, 30.0),
])
pocket10 = body.newObject("PartDesign::Pocket", "Pocket009")
pocket10.Profile = sketch12
pocket10.Length = 5

# Sketch on XY plane
sketch13 = body.newObject("Sketcher::SketchObject", "Sketch012")
sketch13.AttachmentSupport = (doc.getObject("XY_Plane"), [""])
sketch13.MapMode = "FlatFace"
sketch13.AttachmentOffset = App.Placement(Vector(0, 0, 100), App.Rotation())
sketch13.addGeometry([
    Part.LineSegment(Vector(0, 95, 0), Vector(0, 0, 0)),
    Part.LineSegment(Vector(0, 0, 0), Vector(138, 0, 0)),
    Part.LineSegment(Vector(138, 0, 0), Vector(138, 95, 0)),
    Part.LineSegment(Vector(138, 95, 0), Vector(0, 95, 0)),
], False)
sketch13.addConstraint([
    Sketcher.Constraint("Coincident", 0, 2, 1, 1),
    Sketcher.Constraint("Coincident", 1, 2, 2, 1),
    Sketcher.Constraint("Coincident", 2, 2, 3, 1),
    Sketcher.Constraint("Coincident", 3, 2, 0, 1),
    Sketcher.Constraint("Vertical", 0),
    Sketcher.Constraint("Horizontal", 1),
    Sketcher.Constraint("Vertical", 2),
    Sketcher.Constraint("Horizontal", 3),
    Sketcher.Constraint("Coincident", 0, 2, -1, 1),
    Sketcher.Constraint("DistanceY", 0, 2, 0, 1, 95.0),
    Sketcher.Constraint("DistanceX", 1, 1, 1, 2, 137.5),
])
pocket11 = body.newObject("PartDesign::Pocket", "Pocket010")
pocket11.Profile = sketch13
pocket11.Type = "ThroughAll"

# Sketch on YZ plane
sketch14 = body.newObject("Sketcher::SketchObject", "Sketch013")
sketch14.AttachmentSupport = (doc.getObject("YZ_Plane"), [""])
sketch14.MapMode = "FlatFace"
sketch14.addGeometry([
    Part.Circle(Vector(133.8, 30, 0), Vector(0, 0, 1), 3.5),
    Part.Circle(Vector(116.2, 30, 0), Vector(0, 0, 1), 3.5),
], False)
sketch14.addConstraint([
    Sketcher.Constraint("Equal", 0, 1),
    Sketcher.Constraint("Horizontal", 0, 3, 1, 3),
    Sketcher.Constraint("Diameter", 0, 7.0),
    Sketcher.Constraint("DistanceY", -1, 1, 0, 3, 30.0),
    Sketcher.Constraint("DistanceX", 1, 3, 0, 3, 17.5),
    Sketcher.Constraint("DistanceX", -1, 1, 0, 3, 133.75),
])
pocket12 = body.newObject("PartDesign::Pocket", "Pocket011")
pocket12.Profile = sketch14
pocket12.Length = 4
pocket12.Reversed = True

doc.recompute()
